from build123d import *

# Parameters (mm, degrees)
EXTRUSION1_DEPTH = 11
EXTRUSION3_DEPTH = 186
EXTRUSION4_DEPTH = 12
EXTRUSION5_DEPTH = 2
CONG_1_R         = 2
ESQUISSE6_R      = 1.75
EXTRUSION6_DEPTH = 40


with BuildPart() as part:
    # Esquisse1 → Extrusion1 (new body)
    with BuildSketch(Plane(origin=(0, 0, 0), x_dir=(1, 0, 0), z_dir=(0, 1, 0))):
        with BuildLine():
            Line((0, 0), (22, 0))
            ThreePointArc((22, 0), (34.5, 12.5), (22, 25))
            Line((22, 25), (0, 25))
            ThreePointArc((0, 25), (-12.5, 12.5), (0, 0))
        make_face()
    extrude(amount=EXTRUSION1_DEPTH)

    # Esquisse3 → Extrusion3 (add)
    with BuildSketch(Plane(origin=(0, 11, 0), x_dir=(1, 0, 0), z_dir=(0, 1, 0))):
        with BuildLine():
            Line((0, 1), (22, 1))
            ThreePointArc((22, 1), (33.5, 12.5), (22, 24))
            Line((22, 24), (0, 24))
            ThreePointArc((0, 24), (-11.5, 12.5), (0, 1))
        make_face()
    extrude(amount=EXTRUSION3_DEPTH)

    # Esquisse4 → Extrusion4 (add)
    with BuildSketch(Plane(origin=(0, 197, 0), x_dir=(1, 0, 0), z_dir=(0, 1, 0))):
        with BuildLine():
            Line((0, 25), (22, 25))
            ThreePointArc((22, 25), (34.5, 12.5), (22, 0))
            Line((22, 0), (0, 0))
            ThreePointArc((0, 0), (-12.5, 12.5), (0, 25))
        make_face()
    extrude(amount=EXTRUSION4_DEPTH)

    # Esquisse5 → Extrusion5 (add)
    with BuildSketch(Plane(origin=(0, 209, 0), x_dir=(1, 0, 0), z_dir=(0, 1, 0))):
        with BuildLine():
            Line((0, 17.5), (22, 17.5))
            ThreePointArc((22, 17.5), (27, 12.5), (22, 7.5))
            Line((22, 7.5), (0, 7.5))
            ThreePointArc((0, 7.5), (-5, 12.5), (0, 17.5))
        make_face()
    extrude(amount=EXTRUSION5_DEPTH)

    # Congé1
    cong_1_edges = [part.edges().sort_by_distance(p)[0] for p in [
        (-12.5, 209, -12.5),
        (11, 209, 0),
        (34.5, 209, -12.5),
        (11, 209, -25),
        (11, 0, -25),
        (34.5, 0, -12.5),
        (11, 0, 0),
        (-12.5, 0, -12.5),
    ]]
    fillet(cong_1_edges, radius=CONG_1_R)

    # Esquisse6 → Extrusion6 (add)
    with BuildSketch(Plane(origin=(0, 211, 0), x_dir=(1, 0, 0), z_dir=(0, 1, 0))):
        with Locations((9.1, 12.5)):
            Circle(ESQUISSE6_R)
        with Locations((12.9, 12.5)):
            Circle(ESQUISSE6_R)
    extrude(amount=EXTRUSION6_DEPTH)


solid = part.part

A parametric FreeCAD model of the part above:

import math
import FreeCAD as App
import Part
import Sketcher

V = App.Vector
Q = App.Units.Quantity


def edges_at(feature, points):
    """Names of the edges that pass closest to the given points."""
    edges = feature.Shape.Edges
    near = lambda p: min(range(len(edges)), key=lambda i: edges[i].distToShape(Part.Vertex(*p))[0])
    return sorted({f"Edge{near(p) + 1}" for p in points})

doc = App.newDocument("Part")
body = doc.addObject("PartDesign::Body", "Body")

# Sketch on XZ plane
sketch1 = body.newObject("Sketcher::SketchObject", "Sketch")
sketch1.AttachmentSupport = (doc.getObject("XZ_Plane"), [""])
sketch1.MapMode = "FlatFace"
sketch1.addGeometry([
    Part.LineSegment(V(0, 0, 0), V(22, 0, 0)),
    Part.ArcOfCircle(Part.Circle(V(22, -12, 0), V(0, 0, 1), 12), math.radians(-90), math.radians(90)),
    Part.LineSegment(V(22, -25, 0), V(0, -25, 0)),
    Part.ArcOfCircle(Part.Circle(V(0, -12, 0), V(0, 0, 1), 12), math.radians(90), math.radians(270)),
], False)
sketch1.addConstraint([
    Sketcher.Constraint("Tangent", 0, 2, 1, 2),
    Sketcher.Constraint("Tangent", 1, 1, 2, 1),
    Sketcher.Constraint("Tangent", 2, 2, 3, 2),
    Sketcher.Constraint("Tangent", 3, 1, 0, 1),
    Sketcher.Constraint("Horizontal", 0),
    Sketcher.Constraint("Horizontal", 2),
    Sketcher.Constraint("Coincident", 3, 1, -1, 1),
    Sketcher.Constraint("Radius", 1, Q("12.5 mm")),
    Sketcher.Constraint("DistanceX", 0, 1, 0, 2, Q("22 mm")),
])
pad1 = body.newObject("PartDesign::Pad", "Pad")
pad1.Profile = sketch1
pad1.Length = 11
pad1.Reversed = True

# Sketch on XZ plane
sketch2 = body.newObject("Sketcher::SketchObject", "Sketch001")
sketch2.AttachmentSupport = (doc.getObject("XZ_Plane"), [""])
sketch2.MapMode = "FlatFace"
sketch2.AttachmentOffset = App.Placement(V(0, 0, -11), App.Rotation())
sketch2.addGeometry([
    Part.LineSegment(V(0, -1, 0), V(22, -1, 0)),
    Part.ArcOfCircle(Part.Circle(V(22, -12, 0), V(0, 0, 1), 12), math.radians(-90), math.radians(90)),
    Part.LineSegment(V(22, -24, 0), V(0, -24, 0)),
    Part.ArcOfCircle(Part.Circle(V(0, -12, 0), V(0, 0, 1), 12), math.radians(90), math.radians(270)),
], False)
sketch2.addConstraint([
    Sketcher.Constraint("Tangent", 0, 2, 1, 2),
    Sketcher.Constraint("Tangent", 1, 1, 2, 1),
    Sketcher.Constraint("Tangent", 2, 2, 3, 2),
    Sketcher.Constraint("Tangent", 3, 1, 0, 1),
    Sketcher.Constraint("Horizontal", 0),
    Sketcher.Constraint("Horizontal", 2),
    Sketcher.Constraint("PointOnObject", 3, 3, -2),
    Sketcher.Constraint("Radius", 1, Q("11.5 mm")),
    Sketcher.Constraint("DistanceX", 0, 1, 0, 2, Q("22 mm")),
    Sketcher.Constraint("DistanceY", 0, 2, -1, 1, Q("1 mm")),
])
pad2 = body.newObject("PartDesign::Pad", "Pad001")
pad2.Profile = sketch2
pad2.Length = 186
pad2.Reversed = True

# Sketch on XZ plane
sketch3 = body.newObject("Sketcher::SketchObject", "Sketch002")
sketch3.AttachmentSupport = (doc.getObject("XZ_Plane"), [""])
sketch3.MapMode = "FlatFace"
sketch3.AttachmentOffset = App.Placement(V(0, 0, -197), App.Rotation())
sketch3.addGeometry([
    Part.LineSegment(V(22, -25, 0), V(0, -25, 0)),
    Part.ArcOfCircle(Part.Circle(V(0, -12, 0), V(0, 0, 1), 12), math.radians(90), math.radians(270)),
    Part.LineSegment(V(0, 0, 0), V(22, 0, 0)),
    Part.ArcOfCircle(Part.Circle(V(22, -12, 0), V(0, 0, 1), 12), math.radians(-90), math.radians(90)),
], False)
sketch3.addConstraint([
    Sketcher.Constraint("Tangent", 0, 2, 1, 2),
    Sketcher.Constraint("Tangent", 1, 1, 2, 1),
    Sketcher.Constraint("Tangent", 2, 2, 3, 2),
    Sketcher.Constraint("Tangent", 3, 1, 0, 1),
    Sketcher.Constraint("Horizontal", 0),
    Sketcher.Constraint("Horizontal", 2),
    Sketcher.Constraint("Coincident", 1, 1, -1, 1),
    Sketcher.Constraint("Radius", 1, Q("12.5 mm")),
    Sketcher.Constraint("DistanceX", 0, 2, 0, 1, Q("22 mm")),
])
pad3 = body.newObject("PartDesign::Pad", "Pad002")
pad3.Profile = sketch3
pad3.Length = 12
pad3.Reversed = True

# Sketch on XZ plane
sketch4 = body.newObject("Sketcher::SketchObject", "Sketch003")
sketch4.AttachmentSupport = (doc.getObject("XZ_Plane"), [""])
sketch4.MapMode = "FlatFace"
sketch4.AttachmentOffset = App.Placement(V(0, 0, -209), App.Rotation())
sketch4.addGeometry([
    Part.LineSegment(V(22, -18, 0), V(0, -18, 0)),
    Part.ArcOfCircle(Part.Circle(V(0, -12, 0), V(0, 0, 1), 5), math.radians(90), math.radians(270)),
    Part.LineSegment(V(0, -8, 0), V(22, -8, 0)),
    Part.ArcOfCircle(Part.Circle(V(22, -12, 0), V(0, 0, 1), 5), math.radians(-90), math.radians(90)),
], False)
sketch4.addConstraint([
    Sketcher.Constraint("Tangent", 0, 2, 1, 2),
    Sketcher.Constraint("Tangent", 1, 1, 2, 1),
    Sketcher.Constraint("Tangent", 2, 2, 3, 2),
    Sketcher.Constraint("Tangent", 3, 1, 0, 1),
    Sketcher.Constraint("Horizontal", 0),
    Sketcher.Constraint("Horizontal", 2),
    Sketcher.Constraint("PointOnObject", 1, 3, -2),
    Sketcher.Constraint("Radius", 1, Q("5 mm")),
    Sketcher.Constraint("DistanceX", 0, 2, 0, 1, Q("22 mm")),
    Sketcher.Constraint("DistanceY", 1, 3, -1, 1, Q("12.5 mm")),
])
pad4 = body.newObject("PartDesign::Pad", "Pad003")
pad4.Profile = sketch4
pad4.Length = 2
pad4.Reversed = True
doc.recompute()

fillet = body.newObject("PartDesign::Fillet", "Fillet")
fillet.Base = (pad4, edges_at(pad4, [
    (-12.5, 209, -12.5),
    (11, 209, 0),
    (34.5, 209, -12.5),
    (11, 209, -25),
    (11, 0, -25),
    (34.5, 0, -12.5),
    (11, 0, 0),
    (-12.5, 0, -12.5),
]))
fillet.Radius = 2

# Sketch on XZ plane
sketch5 = body.newObject("Sketcher::SketchObject", "Sketch004")
sketch5.AttachmentSupport = (doc.getObject("XZ_Plane"), [""])
sketch5.MapMode = "FlatFace"
sketch5.AttachmentOffset = App.Placement(V(0, 0, -211), App.Rotation())
sketch5.addGeometry([
    Part.Circle(V(9.1, -12.5, 0), V(0, 0, 1), 1.8),
    Part.Circle(V(12.9, -12.5, 0), V(0, 0, 1), 1.8),
], False)
sketch5.addConstraint([
    Sketcher.Constraint("Equal", 0, 1),
    Sketcher.Constraint("Horizontal", 0, 3, 1, 3),
    Sketcher.Constraint("Diameter", 0, Q("3.5 mm")),
    Sketcher.Constraint("DistanceX", -1, 1, 0, 3, Q("9.1 mm")),
    Sketcher.Constraint("DistanceY", 0, 3, -1, 1, Q("12.5 mm")),
    Sketcher.Constraint("DistanceX", -1, 1, 1, 3, Q("12.9 mm")),
])
pad5 = body.newObject("PartDesign::Pad", "Pad004")
pad5.Profile = sketch5
pad5.Length = 40
pad5.Reversed = True

doc.recompute()
